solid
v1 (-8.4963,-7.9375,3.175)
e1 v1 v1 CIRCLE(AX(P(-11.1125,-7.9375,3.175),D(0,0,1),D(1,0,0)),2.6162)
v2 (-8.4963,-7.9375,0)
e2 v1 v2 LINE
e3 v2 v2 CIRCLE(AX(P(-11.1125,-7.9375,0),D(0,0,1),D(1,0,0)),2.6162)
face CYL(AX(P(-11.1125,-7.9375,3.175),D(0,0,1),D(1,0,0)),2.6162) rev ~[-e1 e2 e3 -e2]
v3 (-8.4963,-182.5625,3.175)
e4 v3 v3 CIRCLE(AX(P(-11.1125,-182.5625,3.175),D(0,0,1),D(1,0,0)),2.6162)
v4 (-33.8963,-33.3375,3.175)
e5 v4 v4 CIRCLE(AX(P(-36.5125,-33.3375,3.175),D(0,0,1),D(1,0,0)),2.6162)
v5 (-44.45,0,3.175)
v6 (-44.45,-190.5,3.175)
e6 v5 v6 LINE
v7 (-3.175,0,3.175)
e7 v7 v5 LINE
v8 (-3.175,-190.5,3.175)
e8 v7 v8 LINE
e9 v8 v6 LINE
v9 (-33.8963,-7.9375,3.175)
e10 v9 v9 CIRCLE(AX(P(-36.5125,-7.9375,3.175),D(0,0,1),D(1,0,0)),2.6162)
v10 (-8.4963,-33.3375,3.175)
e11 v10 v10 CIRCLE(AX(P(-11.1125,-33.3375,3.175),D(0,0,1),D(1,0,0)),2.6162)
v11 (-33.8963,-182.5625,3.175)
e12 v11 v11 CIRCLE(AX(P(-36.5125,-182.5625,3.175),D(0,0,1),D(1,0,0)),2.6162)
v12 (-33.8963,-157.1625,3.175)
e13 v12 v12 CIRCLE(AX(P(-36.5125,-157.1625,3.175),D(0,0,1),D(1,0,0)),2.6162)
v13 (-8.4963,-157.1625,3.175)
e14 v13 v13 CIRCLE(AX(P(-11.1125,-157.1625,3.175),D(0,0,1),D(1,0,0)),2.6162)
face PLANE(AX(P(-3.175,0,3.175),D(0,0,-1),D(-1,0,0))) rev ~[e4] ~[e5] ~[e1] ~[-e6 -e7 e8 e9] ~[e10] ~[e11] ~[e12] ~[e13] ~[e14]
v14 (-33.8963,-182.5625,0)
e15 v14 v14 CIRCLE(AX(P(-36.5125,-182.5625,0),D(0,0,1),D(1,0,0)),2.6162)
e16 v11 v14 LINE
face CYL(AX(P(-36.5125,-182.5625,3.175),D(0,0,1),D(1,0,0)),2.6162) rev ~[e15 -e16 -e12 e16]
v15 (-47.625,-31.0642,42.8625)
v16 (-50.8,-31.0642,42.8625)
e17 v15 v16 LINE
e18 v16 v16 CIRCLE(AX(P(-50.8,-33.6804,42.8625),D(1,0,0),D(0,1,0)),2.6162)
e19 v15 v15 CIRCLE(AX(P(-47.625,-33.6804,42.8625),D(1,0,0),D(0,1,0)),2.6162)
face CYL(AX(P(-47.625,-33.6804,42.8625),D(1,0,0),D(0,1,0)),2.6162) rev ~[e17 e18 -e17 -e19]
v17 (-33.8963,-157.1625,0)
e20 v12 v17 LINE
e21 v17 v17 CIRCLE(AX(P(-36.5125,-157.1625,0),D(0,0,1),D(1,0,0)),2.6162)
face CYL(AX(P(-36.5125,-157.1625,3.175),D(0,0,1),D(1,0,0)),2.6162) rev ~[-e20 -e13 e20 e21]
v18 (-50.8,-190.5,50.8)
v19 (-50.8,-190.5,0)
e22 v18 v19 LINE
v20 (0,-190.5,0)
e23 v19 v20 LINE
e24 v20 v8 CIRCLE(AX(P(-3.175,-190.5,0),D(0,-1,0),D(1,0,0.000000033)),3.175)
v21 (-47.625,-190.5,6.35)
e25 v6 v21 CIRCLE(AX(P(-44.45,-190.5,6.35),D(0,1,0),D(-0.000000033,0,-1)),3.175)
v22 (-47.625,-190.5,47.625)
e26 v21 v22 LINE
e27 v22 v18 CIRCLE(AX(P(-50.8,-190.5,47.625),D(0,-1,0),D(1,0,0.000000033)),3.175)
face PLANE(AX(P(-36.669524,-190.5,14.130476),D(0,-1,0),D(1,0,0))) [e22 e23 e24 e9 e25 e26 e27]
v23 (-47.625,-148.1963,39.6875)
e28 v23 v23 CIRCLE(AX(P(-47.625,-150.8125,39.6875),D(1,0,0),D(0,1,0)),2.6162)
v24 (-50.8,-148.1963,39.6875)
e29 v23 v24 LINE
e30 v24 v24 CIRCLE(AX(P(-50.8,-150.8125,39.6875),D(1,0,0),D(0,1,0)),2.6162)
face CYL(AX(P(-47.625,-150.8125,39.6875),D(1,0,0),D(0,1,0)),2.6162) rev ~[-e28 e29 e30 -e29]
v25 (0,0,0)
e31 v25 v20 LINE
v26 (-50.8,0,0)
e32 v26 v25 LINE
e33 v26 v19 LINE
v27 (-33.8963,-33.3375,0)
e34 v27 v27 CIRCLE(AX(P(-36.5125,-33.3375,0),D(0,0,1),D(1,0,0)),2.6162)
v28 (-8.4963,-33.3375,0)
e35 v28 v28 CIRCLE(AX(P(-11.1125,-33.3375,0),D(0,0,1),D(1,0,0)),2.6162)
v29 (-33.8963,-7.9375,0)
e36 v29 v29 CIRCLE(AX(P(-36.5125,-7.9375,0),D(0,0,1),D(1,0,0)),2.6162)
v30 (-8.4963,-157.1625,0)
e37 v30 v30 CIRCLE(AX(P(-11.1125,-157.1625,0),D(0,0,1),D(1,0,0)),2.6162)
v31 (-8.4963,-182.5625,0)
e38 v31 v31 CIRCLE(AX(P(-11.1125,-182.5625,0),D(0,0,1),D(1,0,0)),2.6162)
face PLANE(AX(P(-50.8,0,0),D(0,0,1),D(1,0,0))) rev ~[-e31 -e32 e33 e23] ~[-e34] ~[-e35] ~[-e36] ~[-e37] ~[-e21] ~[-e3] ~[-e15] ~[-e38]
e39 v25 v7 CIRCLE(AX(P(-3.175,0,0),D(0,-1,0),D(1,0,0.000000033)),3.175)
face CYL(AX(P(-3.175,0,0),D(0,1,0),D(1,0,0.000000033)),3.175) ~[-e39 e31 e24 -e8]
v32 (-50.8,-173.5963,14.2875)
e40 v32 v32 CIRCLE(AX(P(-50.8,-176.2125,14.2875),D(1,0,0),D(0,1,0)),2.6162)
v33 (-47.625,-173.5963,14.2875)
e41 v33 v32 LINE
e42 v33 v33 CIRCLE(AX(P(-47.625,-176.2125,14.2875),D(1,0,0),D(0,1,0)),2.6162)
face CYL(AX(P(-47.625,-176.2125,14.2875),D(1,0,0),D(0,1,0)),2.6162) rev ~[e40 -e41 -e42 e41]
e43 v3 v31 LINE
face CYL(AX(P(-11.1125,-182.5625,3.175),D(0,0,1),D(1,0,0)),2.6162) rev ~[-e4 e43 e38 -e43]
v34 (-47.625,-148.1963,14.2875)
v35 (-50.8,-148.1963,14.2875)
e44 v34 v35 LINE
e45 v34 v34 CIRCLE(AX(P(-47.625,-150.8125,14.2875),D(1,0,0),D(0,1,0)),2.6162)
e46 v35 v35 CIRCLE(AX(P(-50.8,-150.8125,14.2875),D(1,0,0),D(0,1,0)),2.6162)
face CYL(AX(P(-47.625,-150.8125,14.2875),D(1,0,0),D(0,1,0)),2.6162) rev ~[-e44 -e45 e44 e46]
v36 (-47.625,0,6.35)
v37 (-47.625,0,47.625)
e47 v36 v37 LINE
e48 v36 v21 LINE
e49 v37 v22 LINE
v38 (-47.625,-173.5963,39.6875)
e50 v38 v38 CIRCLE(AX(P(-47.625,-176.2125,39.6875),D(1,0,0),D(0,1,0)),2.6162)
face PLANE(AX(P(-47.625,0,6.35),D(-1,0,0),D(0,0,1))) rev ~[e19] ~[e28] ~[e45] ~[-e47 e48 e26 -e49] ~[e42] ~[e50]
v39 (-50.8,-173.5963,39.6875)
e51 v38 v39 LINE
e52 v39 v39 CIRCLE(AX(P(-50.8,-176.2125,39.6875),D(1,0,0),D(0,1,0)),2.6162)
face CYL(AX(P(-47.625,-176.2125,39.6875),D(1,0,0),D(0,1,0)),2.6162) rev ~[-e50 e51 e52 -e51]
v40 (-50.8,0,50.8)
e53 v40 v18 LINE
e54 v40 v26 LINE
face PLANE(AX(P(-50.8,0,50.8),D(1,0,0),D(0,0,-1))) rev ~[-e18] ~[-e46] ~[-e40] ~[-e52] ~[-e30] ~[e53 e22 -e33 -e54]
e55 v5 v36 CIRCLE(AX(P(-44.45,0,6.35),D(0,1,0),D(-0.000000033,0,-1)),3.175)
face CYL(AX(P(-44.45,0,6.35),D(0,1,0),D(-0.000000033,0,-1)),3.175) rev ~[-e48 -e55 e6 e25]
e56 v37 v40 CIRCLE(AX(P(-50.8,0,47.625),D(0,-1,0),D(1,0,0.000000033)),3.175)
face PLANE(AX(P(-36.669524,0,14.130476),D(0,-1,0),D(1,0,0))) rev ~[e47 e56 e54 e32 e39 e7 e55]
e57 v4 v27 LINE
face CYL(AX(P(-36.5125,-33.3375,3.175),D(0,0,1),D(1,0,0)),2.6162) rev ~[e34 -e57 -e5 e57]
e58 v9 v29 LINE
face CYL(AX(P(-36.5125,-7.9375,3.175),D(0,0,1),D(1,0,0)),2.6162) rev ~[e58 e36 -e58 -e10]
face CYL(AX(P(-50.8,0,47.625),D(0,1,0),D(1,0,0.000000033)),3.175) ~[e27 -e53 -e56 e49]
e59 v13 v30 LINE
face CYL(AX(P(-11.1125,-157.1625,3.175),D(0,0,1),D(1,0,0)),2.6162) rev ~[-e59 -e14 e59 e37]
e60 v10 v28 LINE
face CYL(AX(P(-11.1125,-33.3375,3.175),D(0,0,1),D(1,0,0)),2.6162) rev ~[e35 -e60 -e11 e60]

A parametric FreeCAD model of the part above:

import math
import FreeCAD as App
import Part
import Sketcher
Q = App.Units.Quantity

doc = App.newDocument("Part")
body = doc.addObject("PartDesign::Body", "Body")

sketch1 = doc.addObject("Sketcher::SketchObject", "Sketch")
body.addObject(sketch1)
sketch1.AttachmentSupport = (doc.XZ_Plane, [""])
sketch1.MapMode = "FlatFace"
sketch1.addGeometry([
    Part.LineSegment(App.Vector(-50.8, 0, 0), App.Vector(0, 0, 0)),
    Part.ArcOfCircle(Part.Circle(App.Vector(-3.175, 0, 0), App.Vector(0, 0, 1), 3.175), math.radians(0.000002), math.radians(89.999998)),
    Part.LineSegment(App.Vector(-3.175, 3.175, 0), App.Vector(-44.45, 3.175, 0)),
    Part.ArcOfCircle(Part.Circle(App.Vector(-44.45, 6.35, 0), App.Vector(0, 0, 1), 3.175), math.radians(-179.999998), math.radians(-90.000002)),
    Part.LineSegment(App.Vector(-47.625, 6.35, 0), App.Vector(-47.625, 47.625, 0)),
    Part.ArcOfCircle(Part.Circle(App.Vector(-50.8, 47.625, 0), App.Vector(0, 0, 1), 3.175), math.radians(0.000002), math.radians(89.999998)),
    Part.LineSegment(App.Vector(-50.8, 50.8, 0), App.Vector(-50.8, 0, 0)),
], False)
sketch1.addConstraint([
    Sketcher.Constraint("Coincident", 0, 2, 1, 1),
    Sketcher.Constraint("Tangent", 1, 2, 2, 1),
    Sketcher.Constraint("Tangent", 2, 2, 3, 2),
    Sketcher.Constraint("Tangent", 3, 1, 4, 1),
    Sketcher.Constraint("Tangent", 4, 2, 5, 1),
    Sketcher.Constraint("Coincident", 5, 2, 6, 1),
    Sketcher.Constraint("Coincident", 6, 2, 0, 1),
    Sketcher.Constraint("Horizontal", 0),
    Sketcher.Constraint("Horizontal", 2),
    Sketcher.Constraint("Vertical", 4),
    Sketcher.Constraint("Vertical", 6),
    Sketcher.Constraint("Coincident", 0, 2, -1, 1),
    Sketcher.Constraint("Equal", 1, 3),
    Sketcher.Constraint("Equal", 3, 5),
    Sketcher.Constraint("PointOnObject", 1, 3, -1),
    Sketcher.Constraint("Equal", 2, 4),
    Sketcher.Constraint("Equal", 0, 6),
    Sketcher.Constraint("DistanceX", 0, 1, 0, 2, Q("2 in")),
    Sketcher.Constraint("Radius", 1, Q("0.125 in")),
])
pad1 = doc.addObject("PartDesign::Pad", "Pad")
body.addObject(pad1)
pad1.Profile = sketch1
pad1.Length = Q("7.5 in")

sketch2 = doc.addObject("Sketcher::SketchObject", "Sketch001")
body.addObject(sketch2)
sketch2.AttachmentSupport = (doc.YZ_Plane, [""])
sketch2.MapMode = "FlatFace"
sketch2.AttachmentOffset = App.Placement(App.Vector(0, 0, -1.875 * 25.4), App.Rotation())
sketch2.addGeometry([
    Part.Circle(App.Vector(-176.2125, 14.2875, 0), App.Vector(0, 0, 1), 2.6162),
    Part.Circle(App.Vector(-176.2125, 39.6875, 0), App.Vector(0, 0, 1), 2.6162),
    Part.Circle(App.Vector(-150.8125, 39.6875, 0), App.Vector(0, 0, 1), 2.6162),
    Part.Circle(App.Vector(-150.8125, 14.2875, 0), App.Vector(0, 0, 1), 2.6162),
    Part.Circle(App.Vector(-33.6804, 42.8625, 0), App.Vector(0, 0, 1), 2.6162),
], False)
sketch2.addConstraint([
    Sketcher.Constraint("Equal", 0, 1),
    Sketcher.Constraint("Equal", 1, 2),
    Sketcher.Constraint("Equal", 2, 3),
    Sketcher.Constraint("Equal", 3, 4),
    Sketcher.Constraint("Horizontal", 1, 3, 2, 3),
    Sketcher.Constraint("Horizontal", 0, 3, 3, 3),
    Sketcher.Constraint("Vertical", 0, 3, 1, 3),
    Sketcher.Constraint("Vertical", 2, 3, 3, 3),
    Sketcher.Constraint("Diameter", 0, Q("0.206 in")),
    Sketcher.Constraint("DistanceY", 0, 3, 1, 3, Q("1 in")),
    Sketcher.Constraint("DistanceX", 1, 3, 2, 3, Q("1 in")),
    Sketcher.Constraint("DistanceX", 0, 3, -1, 1, Q("6.9375 in")),
    Sketcher.Constraint("DistanceY", -1, 1, 0, 3, Q("0.5625 in")),
    Sketcher.Constraint("DistanceX", 4, 3, -1, 1, Q("1.326 in")),
    Sketcher.Constraint("DistanceY", -1, 1, 4, 3, Q("1.6875 in")),
])
pocket1 = doc.addObject("PartDesign::Pocket", "Pocket")
body.addObject(pocket1)
pocket1.Profile = sketch2
pocket1.Type = "ThroughAll"

sketch3 = doc.addObject("Sketcher::SketchObject", "Sketch002")
body.addObject(sketch3)
sketch3.AttachmentSupport = (doc.XY_Plane, [""])
sketch3.MapMode = "FlatFace"
sketch3.AttachmentOffset = App.Placement(App.Vector(0, 0, 0.125 * 25.4), App.Rotation())
sketch3.addGeometry([
    Part.Circle(App.Vector(-36.5125, -182.5625, 0), App.Vector(0, 0, 1), 2.6162),
    Part.Circle(App.Vector(-36.5125, -7.9375, 0), App.Vector(0, 0, 1), 2.6162),
    Part.Circle(App.Vector(-11.1125, -7.9375, 0), App.Vector(0, 0, 1), 2.6162),
    Part.Circle(App.Vector(-36.5125, -33.3375, 0), App.Vector(0, 0, 1), 2.6162),
    Part.Circle(App.Vector(-11.1125, -33.3375, 0), App.Vector(0, 0, 1), 2.6162),
    Part.Circle(App.Vector(-36.5125, -157.1625, 0), App.Vector(0, 0, 1), 2.6162),
    Part.Circle(App.Vector(-11.1125, -182.5625, 0), App.Vector(0, 0, 1), 2.6162),
    Part.Circle(App.Vector(-11.1125, -157.1625, 0), App.Vector(0, 0, 1), 2.6162),
], False)
sketch3.addConstraint([
    Sketcher.Constraint("Equal", 0, 1),
    Sketcher.Constraint("Equal", 1, 2),
    Sketcher.Constraint("Equal", 2, 3),
    Sketcher.Constraint("Equal", 3, 4),
    Sketcher.Constraint("Equal", 4, 5),
    Sketcher.Constraint("Equal", 5, 6),
    Sketcher.Constraint("Equal", 6, 7),
    Sketcher.Constraint("Horizontal", 1, 3, 2, 3),
    Sketcher.Constraint("Horizontal", 3, 3, 4, 3),
    Sketcher.Constraint("Horizontal", 0, 3, 6, 3),
    Sketcher.Constraint("Horizontal", 5, 3, 7, 3),
    Sketcher.Constraint("Vertical", 0, 3, 1, 3),
    Sketcher.Constraint("Vertical", 1, 3, 3, 3),
    Sketcher.Constraint("Vertical", 2, 3, 4, 3),
    Sketcher.Constraint("Vertical", 3, 3, 5, 3),
    Sketcher.Constraint("Vertical", 4, 3, 6, 3),
    Sketcher.Constraint("Vertical", 6, 3, 7, 3),
    Sketcher.Constraint("Diameter", 0, Q("0.206 in")),
    Sketcher.Constraint("DistanceX", 1, 3, 2, 3, Q("1 in")),
    Sketcher.Constraint("DistanceY", 3, 3, 1, 3, Q("1 in")),
    Sketcher.Constraint("DistanceY", 0, 3, 5, 3, Q("1 in")),
    Sketcher.Constraint("DistanceX", 0, 3, -1, 1, Q("1.4375 in")),
    Sketcher.Constraint("DistanceY", 0, 3, -1, 1, Q("7.1875 in")),
    Sketcher.Constraint("DistanceY", 1, 3, -1, 1, Q("0.3125 in")),
])
pocket2 = doc.addObject("PartDesign::Pocket", "Pocket001")
body.addObject(pocket2)
pocket2.Profile = sketch3
pocket2.Type = "ThroughAll"

doc.recompute()
